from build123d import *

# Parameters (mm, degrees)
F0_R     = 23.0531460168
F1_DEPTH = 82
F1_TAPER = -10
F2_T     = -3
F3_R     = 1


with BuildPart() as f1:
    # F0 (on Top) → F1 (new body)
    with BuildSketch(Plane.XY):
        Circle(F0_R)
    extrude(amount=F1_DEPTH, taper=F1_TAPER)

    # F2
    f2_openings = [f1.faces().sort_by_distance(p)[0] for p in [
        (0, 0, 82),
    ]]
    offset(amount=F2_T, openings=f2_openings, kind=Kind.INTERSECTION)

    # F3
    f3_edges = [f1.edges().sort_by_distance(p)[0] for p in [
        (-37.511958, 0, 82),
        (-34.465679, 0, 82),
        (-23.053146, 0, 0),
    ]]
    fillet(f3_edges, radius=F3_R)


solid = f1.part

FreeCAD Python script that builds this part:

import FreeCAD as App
import Part
import Sketcher
Q = App.Units.Quantity


def edges_at(feature, points):
    """Names of the edges that pass closest to the given points."""
    edges = feature.Shape.Edges
    near = lambda p: min(range(len(edges)), key=lambda i: edges[i].distToShape(Part.Vertex(*p))[0])
    return sorted({f"Edge{near(p) + 1}" for p in points})


def faces_at(feature, points):
    """Names of the faces that lie closest to the given points."""
    faces = feature.Shape.Faces
    near = lambda p: min(range(len(faces)), key=lambda i: faces[i].distToShape(Part.Vertex(*p))[0])
    return sorted({f"Face{near(p) + 1}" for p in points})

doc = App.newDocument("Part")
body = doc.addObject("PartDesign::Body", "Body")

# Sketch on XY plane
sketch1 = doc.addObject("Sketcher::SketchObject", "Sketch")
body.addObject(sketch1)
sketch1.AttachmentSupport = (doc.XY_Plane, [""])
sketch1.MapMode = "FlatFace"
sketch1.addGeometry(Part.Circle(App.Vector(0, 0, 0), App.Vector(0, 0, 1), 23), False)
sketch1.addConstraint(Sketcher.Constraint("Coincident", 0, 3, -1, 1))
sketch1.addConstraint(Sketcher.Constraint("Diameter", 0, Q("46.106292 mm")))
pad1 = doc.addObject("PartDesign::Pad", "Pad")
body.addObject(pad1)
pad1.Profile = sketch1
pad1.Length = 82
pad1.TaperAngle = 10
doc.recompute()

thickness = doc.addObject("PartDesign::Thickness", "Thickness")
body.addObject(thickness)
thickness.Base = (pad1, faces_at(pad1, [(0, 0, 82)]))
thickness.Value = 3
thickness.Reversed = True
thickness.Join = "Intersection"
doc.recompute()

fillet = doc.addObject("PartDesign::Fillet", "Fillet")
body.addObject(fillet)
fillet.Base = (thickness, edges_at(thickness, [(-37.512, 0, 82), (-34.466, 0, 82), (-23.053, 0, 0)]))
fillet.Radius = 1

doc.recompute()
